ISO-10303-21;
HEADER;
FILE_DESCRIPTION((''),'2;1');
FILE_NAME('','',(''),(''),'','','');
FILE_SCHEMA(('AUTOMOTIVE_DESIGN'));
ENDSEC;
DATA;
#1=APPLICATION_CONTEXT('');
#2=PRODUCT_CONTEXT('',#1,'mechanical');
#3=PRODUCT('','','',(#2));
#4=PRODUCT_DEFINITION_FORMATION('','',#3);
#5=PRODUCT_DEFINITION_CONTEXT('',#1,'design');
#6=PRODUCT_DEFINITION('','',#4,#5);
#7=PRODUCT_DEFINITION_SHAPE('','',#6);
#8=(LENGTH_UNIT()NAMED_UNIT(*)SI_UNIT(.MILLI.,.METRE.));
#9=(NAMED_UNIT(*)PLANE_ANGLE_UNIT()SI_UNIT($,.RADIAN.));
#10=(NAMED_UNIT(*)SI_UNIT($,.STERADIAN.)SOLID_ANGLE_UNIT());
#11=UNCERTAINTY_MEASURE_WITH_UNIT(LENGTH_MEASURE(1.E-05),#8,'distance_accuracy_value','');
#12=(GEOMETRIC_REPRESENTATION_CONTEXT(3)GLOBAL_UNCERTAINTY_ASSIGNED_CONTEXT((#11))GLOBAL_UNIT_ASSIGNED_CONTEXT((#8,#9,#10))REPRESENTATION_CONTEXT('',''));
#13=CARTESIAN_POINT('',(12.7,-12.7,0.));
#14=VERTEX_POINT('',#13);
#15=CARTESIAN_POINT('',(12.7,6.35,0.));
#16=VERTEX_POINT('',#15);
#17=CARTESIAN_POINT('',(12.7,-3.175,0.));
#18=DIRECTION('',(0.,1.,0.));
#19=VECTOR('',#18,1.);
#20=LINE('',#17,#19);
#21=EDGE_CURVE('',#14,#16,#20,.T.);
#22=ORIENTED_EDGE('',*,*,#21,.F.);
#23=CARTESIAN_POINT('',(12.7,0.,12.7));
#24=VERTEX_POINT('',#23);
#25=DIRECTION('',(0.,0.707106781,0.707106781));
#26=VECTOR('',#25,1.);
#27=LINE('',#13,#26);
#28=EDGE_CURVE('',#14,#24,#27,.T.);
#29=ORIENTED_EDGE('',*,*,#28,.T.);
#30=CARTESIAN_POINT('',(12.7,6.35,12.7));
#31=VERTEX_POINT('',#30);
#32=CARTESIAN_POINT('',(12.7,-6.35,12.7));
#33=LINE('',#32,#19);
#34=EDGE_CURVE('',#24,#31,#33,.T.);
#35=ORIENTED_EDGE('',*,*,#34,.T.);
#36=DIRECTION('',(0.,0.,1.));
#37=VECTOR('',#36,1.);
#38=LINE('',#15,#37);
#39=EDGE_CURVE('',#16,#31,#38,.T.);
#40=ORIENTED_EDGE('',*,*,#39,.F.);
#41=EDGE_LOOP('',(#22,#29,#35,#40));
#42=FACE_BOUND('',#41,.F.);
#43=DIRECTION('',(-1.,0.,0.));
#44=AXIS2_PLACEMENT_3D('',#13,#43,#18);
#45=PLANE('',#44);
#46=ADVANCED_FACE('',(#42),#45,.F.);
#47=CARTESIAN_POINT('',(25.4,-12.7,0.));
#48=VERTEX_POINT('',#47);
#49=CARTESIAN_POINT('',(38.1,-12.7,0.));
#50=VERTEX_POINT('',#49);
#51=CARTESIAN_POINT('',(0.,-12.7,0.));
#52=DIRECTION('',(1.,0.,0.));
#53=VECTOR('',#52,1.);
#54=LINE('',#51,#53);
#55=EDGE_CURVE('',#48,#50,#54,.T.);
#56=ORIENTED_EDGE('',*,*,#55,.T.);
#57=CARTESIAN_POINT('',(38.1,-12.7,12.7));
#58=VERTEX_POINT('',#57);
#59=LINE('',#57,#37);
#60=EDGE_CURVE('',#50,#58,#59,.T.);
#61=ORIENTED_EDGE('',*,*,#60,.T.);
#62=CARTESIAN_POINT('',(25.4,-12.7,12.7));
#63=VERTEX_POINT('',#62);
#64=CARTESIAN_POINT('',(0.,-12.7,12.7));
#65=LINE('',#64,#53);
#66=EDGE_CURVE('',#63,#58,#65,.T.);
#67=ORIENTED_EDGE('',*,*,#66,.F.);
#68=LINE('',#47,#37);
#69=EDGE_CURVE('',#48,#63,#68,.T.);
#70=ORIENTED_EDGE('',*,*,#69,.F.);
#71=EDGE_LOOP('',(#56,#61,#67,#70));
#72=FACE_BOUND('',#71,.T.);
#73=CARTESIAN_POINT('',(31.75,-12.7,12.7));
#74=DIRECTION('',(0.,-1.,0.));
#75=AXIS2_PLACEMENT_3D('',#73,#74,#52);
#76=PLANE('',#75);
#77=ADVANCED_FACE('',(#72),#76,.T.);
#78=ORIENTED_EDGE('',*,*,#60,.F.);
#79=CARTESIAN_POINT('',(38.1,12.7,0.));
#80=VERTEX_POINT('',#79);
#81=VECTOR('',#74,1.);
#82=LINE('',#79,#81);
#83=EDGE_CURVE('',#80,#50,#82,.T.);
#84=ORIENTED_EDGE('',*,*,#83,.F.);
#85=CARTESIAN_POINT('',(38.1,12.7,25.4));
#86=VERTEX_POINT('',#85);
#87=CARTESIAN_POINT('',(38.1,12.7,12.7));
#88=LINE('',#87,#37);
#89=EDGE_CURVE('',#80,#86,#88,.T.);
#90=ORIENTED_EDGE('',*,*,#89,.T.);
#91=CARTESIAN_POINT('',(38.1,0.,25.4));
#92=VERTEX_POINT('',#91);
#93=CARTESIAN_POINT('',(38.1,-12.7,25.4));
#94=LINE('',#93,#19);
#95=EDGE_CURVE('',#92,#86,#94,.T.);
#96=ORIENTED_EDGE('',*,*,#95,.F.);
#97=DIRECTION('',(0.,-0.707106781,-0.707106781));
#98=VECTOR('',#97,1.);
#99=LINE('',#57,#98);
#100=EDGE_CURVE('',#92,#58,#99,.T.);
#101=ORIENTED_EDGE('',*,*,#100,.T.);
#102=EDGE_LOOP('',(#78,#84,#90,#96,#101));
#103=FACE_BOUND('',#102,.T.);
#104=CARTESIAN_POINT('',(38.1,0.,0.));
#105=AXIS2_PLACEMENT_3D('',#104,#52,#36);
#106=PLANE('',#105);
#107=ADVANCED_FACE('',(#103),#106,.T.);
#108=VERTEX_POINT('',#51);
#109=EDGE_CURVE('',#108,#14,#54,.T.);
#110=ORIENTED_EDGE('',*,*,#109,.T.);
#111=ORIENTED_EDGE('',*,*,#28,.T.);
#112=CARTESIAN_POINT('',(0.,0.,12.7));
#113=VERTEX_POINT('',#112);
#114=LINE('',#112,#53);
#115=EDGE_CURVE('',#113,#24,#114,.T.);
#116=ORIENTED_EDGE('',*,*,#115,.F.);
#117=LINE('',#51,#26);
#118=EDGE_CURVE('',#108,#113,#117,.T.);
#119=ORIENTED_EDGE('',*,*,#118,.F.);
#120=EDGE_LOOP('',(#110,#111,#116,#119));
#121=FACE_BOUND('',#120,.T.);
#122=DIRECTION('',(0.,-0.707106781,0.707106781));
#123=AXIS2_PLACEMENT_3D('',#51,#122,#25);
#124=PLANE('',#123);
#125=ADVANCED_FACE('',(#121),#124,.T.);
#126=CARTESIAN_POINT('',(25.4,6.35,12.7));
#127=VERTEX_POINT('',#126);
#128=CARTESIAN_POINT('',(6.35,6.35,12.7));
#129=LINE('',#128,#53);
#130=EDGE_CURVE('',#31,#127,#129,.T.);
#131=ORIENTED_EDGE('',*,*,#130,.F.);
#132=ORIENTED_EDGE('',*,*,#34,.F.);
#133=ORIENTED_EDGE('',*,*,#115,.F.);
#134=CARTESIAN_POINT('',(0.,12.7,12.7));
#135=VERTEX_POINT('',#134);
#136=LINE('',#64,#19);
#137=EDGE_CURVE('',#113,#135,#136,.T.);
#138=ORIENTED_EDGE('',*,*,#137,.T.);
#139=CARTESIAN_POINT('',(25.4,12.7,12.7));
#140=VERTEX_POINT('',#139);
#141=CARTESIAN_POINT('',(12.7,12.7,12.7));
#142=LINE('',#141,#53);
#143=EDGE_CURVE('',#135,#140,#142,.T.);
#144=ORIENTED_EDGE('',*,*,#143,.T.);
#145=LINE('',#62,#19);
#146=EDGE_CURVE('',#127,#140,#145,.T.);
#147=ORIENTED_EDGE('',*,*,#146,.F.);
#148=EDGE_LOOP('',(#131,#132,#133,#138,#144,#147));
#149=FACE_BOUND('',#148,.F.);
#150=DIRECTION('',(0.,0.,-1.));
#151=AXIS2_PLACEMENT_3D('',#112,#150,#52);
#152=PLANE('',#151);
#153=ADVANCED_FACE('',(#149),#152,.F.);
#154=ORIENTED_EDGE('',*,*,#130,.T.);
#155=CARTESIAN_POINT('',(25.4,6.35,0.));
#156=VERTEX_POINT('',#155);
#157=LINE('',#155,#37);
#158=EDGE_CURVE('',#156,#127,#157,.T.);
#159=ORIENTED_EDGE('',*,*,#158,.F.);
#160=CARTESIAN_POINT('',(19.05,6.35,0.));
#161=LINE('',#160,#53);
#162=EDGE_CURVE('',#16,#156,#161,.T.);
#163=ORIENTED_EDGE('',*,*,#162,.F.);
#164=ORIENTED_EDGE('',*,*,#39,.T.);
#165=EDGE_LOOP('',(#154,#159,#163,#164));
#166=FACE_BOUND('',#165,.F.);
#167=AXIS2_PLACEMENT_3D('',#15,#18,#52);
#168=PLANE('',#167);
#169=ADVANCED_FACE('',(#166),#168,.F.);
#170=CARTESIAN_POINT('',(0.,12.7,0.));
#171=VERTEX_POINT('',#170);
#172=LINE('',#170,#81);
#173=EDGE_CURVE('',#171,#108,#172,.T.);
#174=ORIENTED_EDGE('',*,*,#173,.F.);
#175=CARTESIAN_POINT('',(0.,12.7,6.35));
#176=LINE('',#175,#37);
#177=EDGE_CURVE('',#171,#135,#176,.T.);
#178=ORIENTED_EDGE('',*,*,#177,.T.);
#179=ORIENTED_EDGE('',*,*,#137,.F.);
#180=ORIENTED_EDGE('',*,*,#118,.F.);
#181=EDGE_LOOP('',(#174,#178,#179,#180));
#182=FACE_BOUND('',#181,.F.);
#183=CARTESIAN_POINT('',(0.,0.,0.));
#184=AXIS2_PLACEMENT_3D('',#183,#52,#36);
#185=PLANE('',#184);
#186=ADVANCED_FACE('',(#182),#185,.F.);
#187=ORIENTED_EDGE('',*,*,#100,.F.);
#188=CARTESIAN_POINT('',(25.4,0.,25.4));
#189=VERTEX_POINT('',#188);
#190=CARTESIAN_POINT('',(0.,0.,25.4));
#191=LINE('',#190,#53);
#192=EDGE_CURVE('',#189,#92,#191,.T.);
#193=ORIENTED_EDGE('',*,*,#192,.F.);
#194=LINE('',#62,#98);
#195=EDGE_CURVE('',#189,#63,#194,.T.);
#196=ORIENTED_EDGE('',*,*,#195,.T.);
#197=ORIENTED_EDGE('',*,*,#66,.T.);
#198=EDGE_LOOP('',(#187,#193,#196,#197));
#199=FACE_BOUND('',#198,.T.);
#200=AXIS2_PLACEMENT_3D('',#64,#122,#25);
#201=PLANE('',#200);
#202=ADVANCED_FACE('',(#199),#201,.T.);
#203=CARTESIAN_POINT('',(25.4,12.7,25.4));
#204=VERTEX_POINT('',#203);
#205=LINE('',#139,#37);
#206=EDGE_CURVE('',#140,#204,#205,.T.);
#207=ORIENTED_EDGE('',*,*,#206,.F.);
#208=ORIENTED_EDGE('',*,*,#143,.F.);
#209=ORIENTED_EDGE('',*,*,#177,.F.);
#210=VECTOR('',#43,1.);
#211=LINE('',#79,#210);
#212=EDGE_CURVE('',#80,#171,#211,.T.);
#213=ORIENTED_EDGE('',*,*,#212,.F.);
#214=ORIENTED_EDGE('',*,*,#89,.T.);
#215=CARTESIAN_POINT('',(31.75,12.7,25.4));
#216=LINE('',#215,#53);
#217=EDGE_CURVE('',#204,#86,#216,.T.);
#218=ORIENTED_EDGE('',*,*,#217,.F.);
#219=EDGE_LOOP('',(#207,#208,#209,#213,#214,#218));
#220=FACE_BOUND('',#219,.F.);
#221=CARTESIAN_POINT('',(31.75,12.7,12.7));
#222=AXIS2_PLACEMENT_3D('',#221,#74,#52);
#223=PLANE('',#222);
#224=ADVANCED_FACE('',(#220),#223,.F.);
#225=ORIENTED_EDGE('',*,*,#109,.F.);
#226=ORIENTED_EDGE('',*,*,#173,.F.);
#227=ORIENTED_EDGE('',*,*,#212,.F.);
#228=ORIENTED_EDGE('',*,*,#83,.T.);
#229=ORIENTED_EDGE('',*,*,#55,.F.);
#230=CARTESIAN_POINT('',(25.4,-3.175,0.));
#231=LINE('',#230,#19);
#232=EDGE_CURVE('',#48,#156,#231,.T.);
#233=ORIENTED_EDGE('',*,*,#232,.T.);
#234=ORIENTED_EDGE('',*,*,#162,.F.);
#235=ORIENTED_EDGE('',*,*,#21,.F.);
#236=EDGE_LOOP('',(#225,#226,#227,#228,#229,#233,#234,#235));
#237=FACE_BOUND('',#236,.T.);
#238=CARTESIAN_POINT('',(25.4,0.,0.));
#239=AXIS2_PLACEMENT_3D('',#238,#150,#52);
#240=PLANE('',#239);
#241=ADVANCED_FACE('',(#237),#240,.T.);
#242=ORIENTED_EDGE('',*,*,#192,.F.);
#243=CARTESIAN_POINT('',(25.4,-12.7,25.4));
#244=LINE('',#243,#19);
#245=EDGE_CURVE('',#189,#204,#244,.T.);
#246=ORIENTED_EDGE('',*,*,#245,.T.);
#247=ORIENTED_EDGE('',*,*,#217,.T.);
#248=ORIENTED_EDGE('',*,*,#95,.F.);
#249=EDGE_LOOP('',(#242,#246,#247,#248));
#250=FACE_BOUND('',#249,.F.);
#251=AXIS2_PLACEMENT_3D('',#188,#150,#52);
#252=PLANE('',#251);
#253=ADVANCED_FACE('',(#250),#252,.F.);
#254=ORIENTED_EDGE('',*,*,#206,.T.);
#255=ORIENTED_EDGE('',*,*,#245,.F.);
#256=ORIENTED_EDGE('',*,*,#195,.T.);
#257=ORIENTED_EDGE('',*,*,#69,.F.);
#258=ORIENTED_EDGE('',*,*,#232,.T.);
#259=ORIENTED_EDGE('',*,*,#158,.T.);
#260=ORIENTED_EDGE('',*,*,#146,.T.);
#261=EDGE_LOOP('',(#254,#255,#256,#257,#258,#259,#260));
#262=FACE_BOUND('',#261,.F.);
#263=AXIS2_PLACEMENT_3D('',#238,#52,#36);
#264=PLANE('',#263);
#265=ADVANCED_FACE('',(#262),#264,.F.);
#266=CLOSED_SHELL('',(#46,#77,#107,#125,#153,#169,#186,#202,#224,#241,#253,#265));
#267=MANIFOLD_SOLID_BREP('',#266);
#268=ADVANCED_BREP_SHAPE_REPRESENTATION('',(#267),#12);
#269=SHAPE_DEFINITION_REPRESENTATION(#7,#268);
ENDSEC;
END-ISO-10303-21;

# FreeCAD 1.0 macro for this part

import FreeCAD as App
import Part
import Sketcher
Q = App.Units.Quantity

doc = App.newDocument("Part")
body = doc.addObject("PartDesign::Body", "Body")

# Sketch on XZ plane
sketch1 = doc.addObject("Sketcher::SketchObject", "Sketch")
body.addObject(sketch1)
sketch1.AttachmentSupport = (doc.XZ_Plane, [""])
sketch1.MapMode = "FlatFace"
sketch1.addGeometry(Part.LineSegment(App.Vector(0, 13, 0), App.Vector(0, 0, 0)), False)
sketch1.addGeometry(Part.LineSegment(App.Vector(0, 0, 0), App.Vector(25, 0, 0)), False)
sketch1.addGeometry(Part.LineSegment(App.Vector(25, 0, 0), App.Vector(25, 13, 0)), False)
sketch1.addGeometry(Part.LineSegment(App.Vector(25, 13, 0), App.Vector(0, 13, 0)), False)
sketch1.addConstraint(Sketcher.Constraint("Coincident", 0, 2, 1, 1))
sketch1.addConstraint(Sketcher.Constraint("Coincident", 1, 2, 2, 1))
sketch1.addConstraint(Sketcher.Constraint("Coincident", 2, 2, 3, 1))
sketch1.addConstraint(Sketcher.Constraint("Coincident", 3, 2, 0, 1))
sketch1.addConstraint(Sketcher.Constraint("Vertical", 0))
sketch1.addConstraint(Sketcher.Constraint("Horizontal", 1))
sketch1.addConstraint(Sketcher.Constraint("Vertical", 2))
sketch1.addConstraint(Sketcher.Constraint("Horizontal", 3))
sketch1.addConstraint(Sketcher.Constraint("Coincident", 0, 2, -1, 1))
sketch1.addConstraint(Sketcher.Constraint("DistanceX", 1, 1, 1, 2, Q("1 in")))
sketch1.addConstraint(Sketcher.Constraint("DistanceY", 0, 2, 0, 1, Q("0.5 in")))
pad1 = doc.addObject("PartDesign::Pad", "Pad")
body.addObject(pad1)
pad1.Profile = sketch1
pad1.Length = Q("1 in")
pad1.Midplane = True

# Sketch on XZ plane
sketch2 = doc.addObject("Sketcher::SketchObject", "Sketch001")
body.addObject(sketch2)
sketch2.AttachmentSupport = (doc.XZ_Plane, [""])
sketch2.MapMode = "FlatFace"
sketch2.addGeometry(Part.LineSegment(App.Vector(25, 25, 0), App.Vector(25, 0, 0)), False)
sketch2.addGeometry(Part.LineSegment(App.Vector(25, 0, 0), App.Vector(38, 0, 0)), False)
sketch2.addGeometry(Part.LineSegment(App.Vector(38, 0, 0), App.Vector(38, 25, 0)), False)
sketch2.addGeometry(Part.LineSegment(App.Vector(38, 25, 0), App.Vector(25, 25, 0)), False)
sketch2.addConstraint(Sketcher.Constraint("Coincident", 0, 2, 1, 1))
sketch2.addConstraint(Sketcher.Constraint("Coincident", 1, 2, 2, 1))
sketch2.addConstraint(Sketcher.Constraint("Coincident", 2, 2, 3, 1))
sketch2.addConstraint(Sketcher.Constraint("Coincident", 3, 2, 0, 1))
sketch2.addConstraint(Sketcher.Constraint("Vertical", 0))
sketch2.addConstraint(Sketcher.Constraint("Horizontal", 1))
sketch2.addConstraint(Sketcher.Constraint("Vertical", 2))
sketch2.addConstraint(Sketcher.Constraint("Horizontal", 3))
sketch2.addConstraint(Sketcher.Constraint("PointOnObject", 0, 2, -1))
sketch2.addConstraint(Sketcher.Constraint("DistanceY", 0, 2, 0, 1, Q("1 in")))
sketch2.addConstraint(Sketcher.Constraint("DistanceX", 1, 1, 1, 2, Q("0.5 in")))
sketch2.addConstraint(Sketcher.Constraint("DistanceX", -1, 1, 0, 2, Q("1 in")))
pad2 = doc.addObject("PartDesign::Pad", "Pad001")
body.addObject(pad2)
pad2.Profile = sketch2
pad2.Length = Q("1 in")
pad2.Midplane = True

# Sketch on YZ plane
sketch3 = doc.addObject("Sketcher::SketchObject", "Sketch002")
body.addObject(sketch3)
sketch3.AttachmentSupport = (doc.YZ_Plane, [""])
sketch3.MapMode = "FlatFace"
sketch3.addGeometry(Part.LineSegment(App.Vector(-13, 0, 0), App.Vector(0, 13, 0)), False)
sketch3.addGeometry(Part.LineSegment(App.Vector(0, 13, 0), App.Vector(-13, 13, 0)), False)
sketch3.addGeometry(Part.LineSegment(App.Vector(-13, 13, 0), App.Vector(-13, 0, 0)), False)
sketch3.addConstraint(Sketcher.Constraint("Coincident", 0, 2, 1, 1))
sketch3.addConstraint(Sketcher.Constraint("Coincident", 1, 2, 2, 1))
sketch3.addConstraint(Sketcher.Constraint("Coincident", 2, 2, 0, 1))
sketch3.addConstraint(Sketcher.Constraint("Horizontal", 1))
sketch3.addConstraint(Sketcher.Constraint("Vertical", 2))
sketch3.addConstraint(Sketcher.Constraint("PointOnObject", 0, 2, -2))
sketch3.addConstraint(Sketcher.Constraint("PointOnObject", 2, 2, -1))
sketch3.addConstraint(Sketcher.Constraint("Equal", 1, 2))
sketch3.addConstraint(Sketcher.Constraint("DistanceX", 1, 2, 1, 1, Q("0.5 in")))
pocket1 = doc.addObject("PartDesign::Pocket", "Pocket")
body.addObject(pocket1)
pocket1.Profile = sketch3
pocket1.Length = Q("0.5 in")
pocket1.Reversed = True

# Sketch on XY plane
sketch4 = doc.addObject("Sketcher::SketchObject", "Sketch003")
body.addObject(sketch4)
sketch4.AttachmentSupport = (doc.XY_Plane, [""])
sketch4.MapMode = "FlatFace"
sketch4.addGeometry(Part.LineSegment(App.Vector(13, 6, 0), App.Vector(13, -13, 0)), False)
sketch4.addGeometry(Part.LineSegment(App.Vector(13, -13, 0), App.Vector(25, -13, 0)), False)
sketch4.addGeometry(Part.LineSegment(App.Vector(25, -13, 0), App.Vector(25, 6, 0)), False)
sketch4.addGeometry(Part.LineSegment(App.Vector(25, 6, 0), App.Vector(13, 6, 0)), False)
sketch4.addConstraint(Sketcher.Constraint("Coincident", 0, 2, 1, 1))
sketch4.addConstraint(Sketcher.Constraint("Coincident", 1, 2, 2, 1))
sketch4.addConstraint(Sketcher.Constraint("Coincident", 2, 2, 3, 1))
sketch4.addConstraint(Sketcher.Constraint("Coincident", 3, 2, 0, 1))
sketch4.addConstraint(Sketcher.Constraint("Vertical", 0))
sketch4.addConstraint(Sketcher.Constraint("Horizontal", 1))
sketch4.addConstraint(Sketcher.Constraint("Vertical", 2))
sketch4.addConstraint(Sketcher.Constraint("Horizontal", 3))
sketch4.addConstraint(Sketcher.Constraint("DistanceX", 1, 1, 1, 2, Q("0.5 in")))
sketch4.addConstraint(Sketcher.Constraint("DistanceX", -1, 1, 1, 2, Q("1 in")))
sketch4.addConstraint(Sketcher.Constraint("DistanceY", 0, 2, 0, 1, Q("0.75 in")))
sketch4.addConstraint(Sketcher.Constraint("DistanceY", 0, 2, -1, 1, Q("0.5 in")))
pocket2 = doc.addObject("PartDesign::Pocket", "Pocket001")
body.addObject(pocket2)
pocket2.Profile = sketch4
pocket2.Length = Q("1 in")
pocket2.Reversed = True

# Sketch on YZ plane
sketch5 = doc.addObject("Sketcher::SketchObject", "Sketch004")
body.addObject(sketch5)
sketch5.AttachmentSupport = (doc.YZ_Plane, [""])
sketch5.MapMode = "FlatFace"
sketch5.addGeometry(Part.LineSegment(App.Vector(-13, 13, 0), App.Vector(0, 25, 0)), False)
sketch5.addGeometry(Part.LineSegment(App.Vector(0, 25, 0), App.Vector(-13, 25, 0)), False)
sketch5.addGeometry(Part.LineSegment(App.Vector(-13, 25, 0), App.Vector(-13, 13, 0)), False)
sketch5.addConstraint(Sketcher.Constraint("Coincident", 0, 2, 1, 1))
sketch5.addConstraint(Sketcher.Constraint("Coincident", 1, 2, 2, 1))
sketch5.addConstraint(Sketcher.Constraint("Coincident", 2, 2, 0, 1))
sketch5.addConstraint(Sketcher.Constraint("Horizontal", 1))
sketch5.addConstraint(Sketcher.Constraint("Vertical", 2))
sketch5.addConstraint(Sketcher.Constraint("PointOnObject", 0, 2, -2))
sketch5.addConstraint(Sketcher.Constraint("Equal", 1, 2))
sketch5.addConstraint(Sketcher.Constraint("DistanceX", 1, 2, 1, 1, Q("0.5 in")))
sketch5.addConstraint(Sketcher.Constraint("DistanceY", -1, 1, 0, 2, Q("1 in")))
pocket3 = doc.addObject("PartDesign::Pocket", "Pocket002")
body.addObject(pocket3)
pocket3.Profile = sketch5
pocket3.Length = 40.65572
pocket3.Reversed = True

doc.recompute()
